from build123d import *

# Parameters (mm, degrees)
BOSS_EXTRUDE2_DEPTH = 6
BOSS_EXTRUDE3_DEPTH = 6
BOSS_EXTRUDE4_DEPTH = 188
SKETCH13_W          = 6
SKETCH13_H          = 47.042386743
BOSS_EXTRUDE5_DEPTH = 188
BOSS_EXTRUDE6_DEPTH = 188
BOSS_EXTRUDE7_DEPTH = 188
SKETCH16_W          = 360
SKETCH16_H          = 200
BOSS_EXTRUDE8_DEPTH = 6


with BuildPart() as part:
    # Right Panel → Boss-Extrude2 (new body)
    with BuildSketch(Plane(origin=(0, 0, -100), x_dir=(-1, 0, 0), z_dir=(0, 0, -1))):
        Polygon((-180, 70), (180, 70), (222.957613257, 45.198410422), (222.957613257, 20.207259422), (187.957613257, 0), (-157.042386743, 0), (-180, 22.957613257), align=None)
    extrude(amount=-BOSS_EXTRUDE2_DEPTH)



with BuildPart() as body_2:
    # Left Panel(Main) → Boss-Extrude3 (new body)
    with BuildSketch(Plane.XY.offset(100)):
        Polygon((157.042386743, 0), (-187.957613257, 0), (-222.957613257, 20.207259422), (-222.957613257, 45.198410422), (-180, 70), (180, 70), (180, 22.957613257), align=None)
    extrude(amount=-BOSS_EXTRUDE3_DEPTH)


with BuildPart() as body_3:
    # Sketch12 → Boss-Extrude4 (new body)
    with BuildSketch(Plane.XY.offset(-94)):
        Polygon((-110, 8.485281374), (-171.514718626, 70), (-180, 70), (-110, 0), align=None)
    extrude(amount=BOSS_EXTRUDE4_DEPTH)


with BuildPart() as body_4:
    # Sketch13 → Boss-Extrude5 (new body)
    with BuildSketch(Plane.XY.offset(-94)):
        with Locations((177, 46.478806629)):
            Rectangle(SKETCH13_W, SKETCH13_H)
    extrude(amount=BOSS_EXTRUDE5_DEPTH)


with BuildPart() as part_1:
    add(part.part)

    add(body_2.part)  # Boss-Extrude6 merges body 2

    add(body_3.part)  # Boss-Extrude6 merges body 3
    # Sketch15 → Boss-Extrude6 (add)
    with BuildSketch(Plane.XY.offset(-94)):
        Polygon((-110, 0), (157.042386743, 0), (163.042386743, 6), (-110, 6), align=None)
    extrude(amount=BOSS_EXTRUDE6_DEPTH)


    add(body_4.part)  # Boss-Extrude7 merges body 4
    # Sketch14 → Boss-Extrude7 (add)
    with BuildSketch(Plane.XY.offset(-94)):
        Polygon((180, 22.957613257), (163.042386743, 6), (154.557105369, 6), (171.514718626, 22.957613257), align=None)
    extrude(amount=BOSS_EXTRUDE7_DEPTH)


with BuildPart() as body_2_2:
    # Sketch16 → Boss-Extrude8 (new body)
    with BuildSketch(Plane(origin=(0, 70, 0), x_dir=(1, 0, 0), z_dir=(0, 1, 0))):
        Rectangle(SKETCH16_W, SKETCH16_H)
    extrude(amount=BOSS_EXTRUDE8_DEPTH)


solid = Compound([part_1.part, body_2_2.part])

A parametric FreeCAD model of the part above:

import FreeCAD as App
import Part
import Sketcher
Q = App.Units.Quantity


def add_polygon(sketch, points):
    """Adds a closed chain of lines whose ends are joined by coincident constraints."""
    first, n = sketch.GeometryCount, len(points)
    for a, b in zip(points, points[1:] + points[:1]):
        sketch.addGeometry(Part.LineSegment(App.Vector(*a, 0), App.Vector(*b, 0)), False)
    for i in range(n):
        sketch.addConstraint(Sketcher.Constraint("Coincident", first + i, 2, first + (i + 1) % n, 1))

doc = App.newDocument("Part")
body = doc.addObject("PartDesign::Body", "Body")

sketch1 = body.newObject("Sketcher::SketchObject", "Sketch")
sketch1.AttachmentSupport = (doc.getObject("XY_Plane"), [""])
sketch1.MapMode = "FlatFace"
sketch1.AttachmentOffset = App.Placement(App.Vector(0, 0, -100), App.Rotation())
add_polygon(sketch1, [(-180, 70), (180, 70), (180, 23), (157, 0), (-188, 0), (-223, 20), (-223, 45)])
sketch1.addConstraint(Sketcher.Constraint("Horizontal", 0))
sketch1.addConstraint(Sketcher.Constraint("Vertical", 1))
sketch1.addConstraint(Sketcher.Constraint("Horizontal", 3))
sketch1.addConstraint(Sketcher.Constraint("Vertical", 5))
sketch1.addConstraint(Sketcher.Constraint("PointOnObject", 2, 2, -1))
sketch1.addConstraint(Sketcher.Constraint("DistanceX", 0, 1, 0, 2, 360.0))
sketch1.addConstraint(Sketcher.Constraint("DistanceX", 3, 2, 3, 1, 345.0))
sketch1.addConstraint(Sketcher.Constraint("Angle", 2, Q("-135 deg")))
sketch1.addConstraint(Sketcher.Constraint("Angle", 4, Q("150 deg")))
sketch1.addConstraint(Sketcher.Constraint("Angle", 6, Q("30 deg")))
sketch1.addConstraint(Sketcher.Constraint("DistanceX", -1, 1, 0, 2, 180.0))
sketch1.addConstraint(Sketcher.Constraint("DistanceY", -1, 1, 0, 2, 70.0))
sketch1.addConstraint(Sketcher.Constraint("DistanceX", 4, 2, 3, 2, 35.0))
sketch1.addConstraint(Sketcher.Constraint("DistanceY", 5, 1, 5, 2, 24.991151))
pad1 = body.newObject("PartDesign::Pad", "Pad")
pad1.Profile = sketch1
pad1.Length = 6
body2 = doc.addObject("PartDesign::Body", "Body001")

sketch2 = body2.newObject("Sketcher::SketchObject", "Sketch001")
sketch2.AttachmentSupport = (doc.getObject("XY_Plane001"), [""])
sketch2.MapMode = "FlatFace"
sketch2.AttachmentOffset = App.Placement(App.Vector(0, 0, 100), App.Rotation())
add_polygon(sketch2, [(-188, 0), (157, 0), (180, 23), (180, 70), (-180, 70), (-223, 45), (-223, 20)])
sketch2.addConstraint(Sketcher.Constraint("Horizontal", 0))
sketch2.addConstraint(Sketcher.Constraint("Vertical", 2))
sketch2.addConstraint(Sketcher.Constraint("Horizontal", 3))
sketch2.addConstraint(Sketcher.Constraint("Vertical", 5))
sketch2.addConstraint(Sketcher.Constraint("PointOnObject", 0, 2, -1))
sketch2.addConstraint(Sketcher.Constraint("DistanceX", 0, 1, 0, 2, 345.0))
sketch2.addConstraint(Sketcher.Constraint("DistanceX", 3, 2, 3, 1, 360.0))
sketch2.addConstraint(Sketcher.Constraint("Angle", 1, Q("45 deg")))
sketch2.addConstraint(Sketcher.Constraint("Angle", 4, Q("-150 deg")))
sketch2.addConstraint(Sketcher.Constraint("Angle", 6, Q("-30 deg")))
sketch2.addConstraint(Sketcher.Constraint("DistanceX", -1, 1, 1, 2, 180.0))
sketch2.addConstraint(Sketcher.Constraint("DistanceY", -1, 1, 2, 2, 70.0))
sketch2.addConstraint(Sketcher.Constraint("DistanceX", 4, 2, 0, 2, 380.0))
sketch2.addConstraint(Sketcher.Constraint("DistanceY", 5, 2, 5, 1, 24.991151))
pad2 = body2.newObject("PartDesign::Pad", "Pad001")
pad2.Profile = sketch2
pad2.Length = 6
pad2.Reversed = True
body3 = doc.addObject("PartDesign::Body", "Body002")

sketch3 = body3.newObject("Sketcher::SketchObject", "Sketch002")
sketch3.AttachmentSupport = (doc.getObject("XY_Plane002"), [""])
sketch3.MapMode = "FlatFace"
sketch3.AttachmentOffset = App.Placement(App.Vector(0, 0, -94), App.Rotation())
add_polygon(sketch3, [(-110, 8), (-172, 70), (-180, 70), (-110, 0)])
sketch3.addConstraint(Sketcher.Constraint("Horizontal", 1))
sketch3.addConstraint(Sketcher.Constraint("Vertical", 3))
sketch3.addConstraint(Sketcher.Constraint("PointOnObject", 2, 2, -1))
sketch3.addConstraint(Sketcher.Constraint("Parallel", 0, 2))
sketch3.addConstraint(Sketcher.Constraint("Equal", 1, 3))
sketch3.addConstraint(Sketcher.Constraint("DistanceY", -1, 1, 0, 2, 70.0))
sketch3.addConstraint(Sketcher.Constraint("DistanceX", 1, 2, -1, 1, 180.0))
sketch3.addConstraint(Sketcher.Constraint("DistanceX", 1, 2, 1, 1, 8.485281))
pad3 = body3.newObject("PartDesign::Pad", "Pad002")
pad3.Profile = sketch3
pad3.Length = 188
body4 = doc.addObject("PartDesign::Body", "Body003")

sketch4 = body4.newObject("Sketcher::SketchObject", "Sketch003")
sketch4.AttachmentSupport = (doc.getObject("XY_Plane003"), [""])
sketch4.MapMode = "FlatFace"
sketch4.AttachmentOffset = App.Placement(App.Vector(0, 0, -94), App.Rotation())
add_polygon(sketch4, [(174, 70), (174, 23), (180, 23), (180, 70)])
sketch4.addConstraint(Sketcher.Constraint("Vertical", 0))
sketch4.addConstraint(Sketcher.Constraint("Horizontal", 1))
sketch4.addConstraint(Sketcher.Constraint("Vertical", 2))
sketch4.addConstraint(Sketcher.Constraint("Horizontal", 3))
sketch4.addConstraint(Sketcher.Constraint("DistanceX", 1, 1, 1, 2, 6.0))
sketch4.addConstraint(Sketcher.Constraint("DistanceX", -1, 1, 0, 2, 174.0))
sketch4.addConstraint(Sketcher.Constraint("DistanceY", -1, 1, 2, 2, 70.0))
sketch4.addConstraint(Sketcher.Constraint("DistanceY", 0, 2, 0, 1, 47.042387))
pad4 = body4.newObject("PartDesign::Pad", "Pad003")
pad4.Profile = sketch4
pad4.Length = 188
body.AllowCompound = True
doc.recompute()

boolean = body.newObject("PartDesign::Boolean", "Boolean")
boolean.Type = "Fuse"
boolean.addObjects([body2])
doc.recompute()

boolean2 = body.newObject("PartDesign::Boolean", "Boolean001")
boolean2.Type = "Fuse"
boolean2.addObjects([body3])

sketch5 = body.newObject("Sketcher::SketchObject", "Sketch004")
sketch5.AttachmentSupport = (doc.getObject("XY_Plane"), [""])
sketch5.MapMode = "FlatFace"
sketch5.AttachmentOffset = App.Placement(App.Vector(0, 0, -94), App.Rotation())
add_polygon(sketch5, [(-110, 0), (157, 0), (163, 6), (-110, 6)])
sketch5.addConstraint(Sketcher.Constraint("Horizontal", 0))
sketch5.addConstraint(Sketcher.Constraint("Horizontal", 2))
sketch5.addConstraint(Sketcher.Constraint("Vertical", 3))
sketch5.addConstraint(Sketcher.Constraint("PointOnObject", 0, 2, -1))
sketch5.addConstraint(Sketcher.Constraint("DistanceY", 3, 2, 3, 1, 6.0))
sketch5.addConstraint(Sketcher.Constraint("Angle", 1, Q("45 deg")))
sketch5.addConstraint(Sketcher.Constraint("DistanceX", 2, 2, -1, 1, 110.0))
sketch5.addConstraint(Sketcher.Constraint("DistanceX", 0, 1, 0, 2, 267.042387))
pad5 = body.newObject("PartDesign::Pad", "Pad004")
pad5.Profile = sketch5
pad5.Length = 188
doc.recompute()

boolean3 = body.newObject("PartDesign::Boolean", "Boolean002")
boolean3.Type = "Fuse"
boolean3.addObjects([body4])

sketch6 = body.newObject("Sketcher::SketchObject", "Sketch005")
sketch6.AttachmentSupport = (doc.getObject("XY_Plane"), [""])
sketch6.MapMode = "FlatFace"
sketch6.AttachmentOffset = App.Placement(App.Vector(0, 0, -94), App.Rotation())
add_polygon(sketch6, [(163, 6), (180, 23), (172, 23), (155, 6)])
sketch6.addConstraint(Sketcher.Constraint("Horizontal", 1))
sketch6.addConstraint(Sketcher.Constraint("Horizontal", 3))
sketch6.addConstraint(Sketcher.Constraint("Parallel", 0, 2))
sketch6.addConstraint(Sketcher.Constraint("Angle", 0, Q("45 deg")))
sketch6.addConstraint(Sketcher.Constraint("DistanceX", -1, 1, 0, 2, 180.0))
sketch6.addConstraint(Sketcher.Constraint("DistanceY", -1, 1, 2, 2, 6.0))
sketch6.addConstraint(Sketcher.Constraint("DistanceX", 1, 2, 1, 1, 8.485281))
sketch6.addConstraint(Sketcher.Constraint("DistanceX", 3, 2, 1, 2, 8.472332))
pad6 = body.newObject("PartDesign::Pad", "Pad005")
pad6.Profile = sketch6
pad6.Length = 188
body5 = doc.addObject("PartDesign::Body", "Body004")

sketch7 = body5.newObject("Sketcher::SketchObject", "Sketch006")
sketch7.AttachmentSupport = (doc.getObject("XZ_Plane004"), [""])
sketch7.MapMode = "FlatFace"
sketch7.AttachmentOffset = App.Placement(App.Vector(0, 0, -70), App.Rotation())
add_polygon(sketch7, [(-180, -100), (-180, 100), (180, 100), (180, -100)])
sketch7.addConstraint(Sketcher.Constraint("Vertical", 0))
sketch7.addConstraint(Sketcher.Constraint("Horizontal", 1))
sketch7.addConstraint(Sketcher.Constraint("Vertical", 2))
sketch7.addConstraint(Sketcher.Constraint("Horizontal", 3))
sketch7.addConstraint(Sketcher.Constraint("Symmetric", 0, 2, 2, 2, -1, 1))
sketch7.addConstraint(Sketcher.Constraint("DistanceX", 1, 1, 1, 2, 360.0))
sketch7.addConstraint(Sketcher.Constraint("DistanceY", 0, 1, 0, 2, 200.0))
pad7 = body5.newObject("PartDesign::Pad", "Pad006")
pad7.Profile = sketch7
pad7.Length = 6
pad7.Reversed = True

doc.recompute()
